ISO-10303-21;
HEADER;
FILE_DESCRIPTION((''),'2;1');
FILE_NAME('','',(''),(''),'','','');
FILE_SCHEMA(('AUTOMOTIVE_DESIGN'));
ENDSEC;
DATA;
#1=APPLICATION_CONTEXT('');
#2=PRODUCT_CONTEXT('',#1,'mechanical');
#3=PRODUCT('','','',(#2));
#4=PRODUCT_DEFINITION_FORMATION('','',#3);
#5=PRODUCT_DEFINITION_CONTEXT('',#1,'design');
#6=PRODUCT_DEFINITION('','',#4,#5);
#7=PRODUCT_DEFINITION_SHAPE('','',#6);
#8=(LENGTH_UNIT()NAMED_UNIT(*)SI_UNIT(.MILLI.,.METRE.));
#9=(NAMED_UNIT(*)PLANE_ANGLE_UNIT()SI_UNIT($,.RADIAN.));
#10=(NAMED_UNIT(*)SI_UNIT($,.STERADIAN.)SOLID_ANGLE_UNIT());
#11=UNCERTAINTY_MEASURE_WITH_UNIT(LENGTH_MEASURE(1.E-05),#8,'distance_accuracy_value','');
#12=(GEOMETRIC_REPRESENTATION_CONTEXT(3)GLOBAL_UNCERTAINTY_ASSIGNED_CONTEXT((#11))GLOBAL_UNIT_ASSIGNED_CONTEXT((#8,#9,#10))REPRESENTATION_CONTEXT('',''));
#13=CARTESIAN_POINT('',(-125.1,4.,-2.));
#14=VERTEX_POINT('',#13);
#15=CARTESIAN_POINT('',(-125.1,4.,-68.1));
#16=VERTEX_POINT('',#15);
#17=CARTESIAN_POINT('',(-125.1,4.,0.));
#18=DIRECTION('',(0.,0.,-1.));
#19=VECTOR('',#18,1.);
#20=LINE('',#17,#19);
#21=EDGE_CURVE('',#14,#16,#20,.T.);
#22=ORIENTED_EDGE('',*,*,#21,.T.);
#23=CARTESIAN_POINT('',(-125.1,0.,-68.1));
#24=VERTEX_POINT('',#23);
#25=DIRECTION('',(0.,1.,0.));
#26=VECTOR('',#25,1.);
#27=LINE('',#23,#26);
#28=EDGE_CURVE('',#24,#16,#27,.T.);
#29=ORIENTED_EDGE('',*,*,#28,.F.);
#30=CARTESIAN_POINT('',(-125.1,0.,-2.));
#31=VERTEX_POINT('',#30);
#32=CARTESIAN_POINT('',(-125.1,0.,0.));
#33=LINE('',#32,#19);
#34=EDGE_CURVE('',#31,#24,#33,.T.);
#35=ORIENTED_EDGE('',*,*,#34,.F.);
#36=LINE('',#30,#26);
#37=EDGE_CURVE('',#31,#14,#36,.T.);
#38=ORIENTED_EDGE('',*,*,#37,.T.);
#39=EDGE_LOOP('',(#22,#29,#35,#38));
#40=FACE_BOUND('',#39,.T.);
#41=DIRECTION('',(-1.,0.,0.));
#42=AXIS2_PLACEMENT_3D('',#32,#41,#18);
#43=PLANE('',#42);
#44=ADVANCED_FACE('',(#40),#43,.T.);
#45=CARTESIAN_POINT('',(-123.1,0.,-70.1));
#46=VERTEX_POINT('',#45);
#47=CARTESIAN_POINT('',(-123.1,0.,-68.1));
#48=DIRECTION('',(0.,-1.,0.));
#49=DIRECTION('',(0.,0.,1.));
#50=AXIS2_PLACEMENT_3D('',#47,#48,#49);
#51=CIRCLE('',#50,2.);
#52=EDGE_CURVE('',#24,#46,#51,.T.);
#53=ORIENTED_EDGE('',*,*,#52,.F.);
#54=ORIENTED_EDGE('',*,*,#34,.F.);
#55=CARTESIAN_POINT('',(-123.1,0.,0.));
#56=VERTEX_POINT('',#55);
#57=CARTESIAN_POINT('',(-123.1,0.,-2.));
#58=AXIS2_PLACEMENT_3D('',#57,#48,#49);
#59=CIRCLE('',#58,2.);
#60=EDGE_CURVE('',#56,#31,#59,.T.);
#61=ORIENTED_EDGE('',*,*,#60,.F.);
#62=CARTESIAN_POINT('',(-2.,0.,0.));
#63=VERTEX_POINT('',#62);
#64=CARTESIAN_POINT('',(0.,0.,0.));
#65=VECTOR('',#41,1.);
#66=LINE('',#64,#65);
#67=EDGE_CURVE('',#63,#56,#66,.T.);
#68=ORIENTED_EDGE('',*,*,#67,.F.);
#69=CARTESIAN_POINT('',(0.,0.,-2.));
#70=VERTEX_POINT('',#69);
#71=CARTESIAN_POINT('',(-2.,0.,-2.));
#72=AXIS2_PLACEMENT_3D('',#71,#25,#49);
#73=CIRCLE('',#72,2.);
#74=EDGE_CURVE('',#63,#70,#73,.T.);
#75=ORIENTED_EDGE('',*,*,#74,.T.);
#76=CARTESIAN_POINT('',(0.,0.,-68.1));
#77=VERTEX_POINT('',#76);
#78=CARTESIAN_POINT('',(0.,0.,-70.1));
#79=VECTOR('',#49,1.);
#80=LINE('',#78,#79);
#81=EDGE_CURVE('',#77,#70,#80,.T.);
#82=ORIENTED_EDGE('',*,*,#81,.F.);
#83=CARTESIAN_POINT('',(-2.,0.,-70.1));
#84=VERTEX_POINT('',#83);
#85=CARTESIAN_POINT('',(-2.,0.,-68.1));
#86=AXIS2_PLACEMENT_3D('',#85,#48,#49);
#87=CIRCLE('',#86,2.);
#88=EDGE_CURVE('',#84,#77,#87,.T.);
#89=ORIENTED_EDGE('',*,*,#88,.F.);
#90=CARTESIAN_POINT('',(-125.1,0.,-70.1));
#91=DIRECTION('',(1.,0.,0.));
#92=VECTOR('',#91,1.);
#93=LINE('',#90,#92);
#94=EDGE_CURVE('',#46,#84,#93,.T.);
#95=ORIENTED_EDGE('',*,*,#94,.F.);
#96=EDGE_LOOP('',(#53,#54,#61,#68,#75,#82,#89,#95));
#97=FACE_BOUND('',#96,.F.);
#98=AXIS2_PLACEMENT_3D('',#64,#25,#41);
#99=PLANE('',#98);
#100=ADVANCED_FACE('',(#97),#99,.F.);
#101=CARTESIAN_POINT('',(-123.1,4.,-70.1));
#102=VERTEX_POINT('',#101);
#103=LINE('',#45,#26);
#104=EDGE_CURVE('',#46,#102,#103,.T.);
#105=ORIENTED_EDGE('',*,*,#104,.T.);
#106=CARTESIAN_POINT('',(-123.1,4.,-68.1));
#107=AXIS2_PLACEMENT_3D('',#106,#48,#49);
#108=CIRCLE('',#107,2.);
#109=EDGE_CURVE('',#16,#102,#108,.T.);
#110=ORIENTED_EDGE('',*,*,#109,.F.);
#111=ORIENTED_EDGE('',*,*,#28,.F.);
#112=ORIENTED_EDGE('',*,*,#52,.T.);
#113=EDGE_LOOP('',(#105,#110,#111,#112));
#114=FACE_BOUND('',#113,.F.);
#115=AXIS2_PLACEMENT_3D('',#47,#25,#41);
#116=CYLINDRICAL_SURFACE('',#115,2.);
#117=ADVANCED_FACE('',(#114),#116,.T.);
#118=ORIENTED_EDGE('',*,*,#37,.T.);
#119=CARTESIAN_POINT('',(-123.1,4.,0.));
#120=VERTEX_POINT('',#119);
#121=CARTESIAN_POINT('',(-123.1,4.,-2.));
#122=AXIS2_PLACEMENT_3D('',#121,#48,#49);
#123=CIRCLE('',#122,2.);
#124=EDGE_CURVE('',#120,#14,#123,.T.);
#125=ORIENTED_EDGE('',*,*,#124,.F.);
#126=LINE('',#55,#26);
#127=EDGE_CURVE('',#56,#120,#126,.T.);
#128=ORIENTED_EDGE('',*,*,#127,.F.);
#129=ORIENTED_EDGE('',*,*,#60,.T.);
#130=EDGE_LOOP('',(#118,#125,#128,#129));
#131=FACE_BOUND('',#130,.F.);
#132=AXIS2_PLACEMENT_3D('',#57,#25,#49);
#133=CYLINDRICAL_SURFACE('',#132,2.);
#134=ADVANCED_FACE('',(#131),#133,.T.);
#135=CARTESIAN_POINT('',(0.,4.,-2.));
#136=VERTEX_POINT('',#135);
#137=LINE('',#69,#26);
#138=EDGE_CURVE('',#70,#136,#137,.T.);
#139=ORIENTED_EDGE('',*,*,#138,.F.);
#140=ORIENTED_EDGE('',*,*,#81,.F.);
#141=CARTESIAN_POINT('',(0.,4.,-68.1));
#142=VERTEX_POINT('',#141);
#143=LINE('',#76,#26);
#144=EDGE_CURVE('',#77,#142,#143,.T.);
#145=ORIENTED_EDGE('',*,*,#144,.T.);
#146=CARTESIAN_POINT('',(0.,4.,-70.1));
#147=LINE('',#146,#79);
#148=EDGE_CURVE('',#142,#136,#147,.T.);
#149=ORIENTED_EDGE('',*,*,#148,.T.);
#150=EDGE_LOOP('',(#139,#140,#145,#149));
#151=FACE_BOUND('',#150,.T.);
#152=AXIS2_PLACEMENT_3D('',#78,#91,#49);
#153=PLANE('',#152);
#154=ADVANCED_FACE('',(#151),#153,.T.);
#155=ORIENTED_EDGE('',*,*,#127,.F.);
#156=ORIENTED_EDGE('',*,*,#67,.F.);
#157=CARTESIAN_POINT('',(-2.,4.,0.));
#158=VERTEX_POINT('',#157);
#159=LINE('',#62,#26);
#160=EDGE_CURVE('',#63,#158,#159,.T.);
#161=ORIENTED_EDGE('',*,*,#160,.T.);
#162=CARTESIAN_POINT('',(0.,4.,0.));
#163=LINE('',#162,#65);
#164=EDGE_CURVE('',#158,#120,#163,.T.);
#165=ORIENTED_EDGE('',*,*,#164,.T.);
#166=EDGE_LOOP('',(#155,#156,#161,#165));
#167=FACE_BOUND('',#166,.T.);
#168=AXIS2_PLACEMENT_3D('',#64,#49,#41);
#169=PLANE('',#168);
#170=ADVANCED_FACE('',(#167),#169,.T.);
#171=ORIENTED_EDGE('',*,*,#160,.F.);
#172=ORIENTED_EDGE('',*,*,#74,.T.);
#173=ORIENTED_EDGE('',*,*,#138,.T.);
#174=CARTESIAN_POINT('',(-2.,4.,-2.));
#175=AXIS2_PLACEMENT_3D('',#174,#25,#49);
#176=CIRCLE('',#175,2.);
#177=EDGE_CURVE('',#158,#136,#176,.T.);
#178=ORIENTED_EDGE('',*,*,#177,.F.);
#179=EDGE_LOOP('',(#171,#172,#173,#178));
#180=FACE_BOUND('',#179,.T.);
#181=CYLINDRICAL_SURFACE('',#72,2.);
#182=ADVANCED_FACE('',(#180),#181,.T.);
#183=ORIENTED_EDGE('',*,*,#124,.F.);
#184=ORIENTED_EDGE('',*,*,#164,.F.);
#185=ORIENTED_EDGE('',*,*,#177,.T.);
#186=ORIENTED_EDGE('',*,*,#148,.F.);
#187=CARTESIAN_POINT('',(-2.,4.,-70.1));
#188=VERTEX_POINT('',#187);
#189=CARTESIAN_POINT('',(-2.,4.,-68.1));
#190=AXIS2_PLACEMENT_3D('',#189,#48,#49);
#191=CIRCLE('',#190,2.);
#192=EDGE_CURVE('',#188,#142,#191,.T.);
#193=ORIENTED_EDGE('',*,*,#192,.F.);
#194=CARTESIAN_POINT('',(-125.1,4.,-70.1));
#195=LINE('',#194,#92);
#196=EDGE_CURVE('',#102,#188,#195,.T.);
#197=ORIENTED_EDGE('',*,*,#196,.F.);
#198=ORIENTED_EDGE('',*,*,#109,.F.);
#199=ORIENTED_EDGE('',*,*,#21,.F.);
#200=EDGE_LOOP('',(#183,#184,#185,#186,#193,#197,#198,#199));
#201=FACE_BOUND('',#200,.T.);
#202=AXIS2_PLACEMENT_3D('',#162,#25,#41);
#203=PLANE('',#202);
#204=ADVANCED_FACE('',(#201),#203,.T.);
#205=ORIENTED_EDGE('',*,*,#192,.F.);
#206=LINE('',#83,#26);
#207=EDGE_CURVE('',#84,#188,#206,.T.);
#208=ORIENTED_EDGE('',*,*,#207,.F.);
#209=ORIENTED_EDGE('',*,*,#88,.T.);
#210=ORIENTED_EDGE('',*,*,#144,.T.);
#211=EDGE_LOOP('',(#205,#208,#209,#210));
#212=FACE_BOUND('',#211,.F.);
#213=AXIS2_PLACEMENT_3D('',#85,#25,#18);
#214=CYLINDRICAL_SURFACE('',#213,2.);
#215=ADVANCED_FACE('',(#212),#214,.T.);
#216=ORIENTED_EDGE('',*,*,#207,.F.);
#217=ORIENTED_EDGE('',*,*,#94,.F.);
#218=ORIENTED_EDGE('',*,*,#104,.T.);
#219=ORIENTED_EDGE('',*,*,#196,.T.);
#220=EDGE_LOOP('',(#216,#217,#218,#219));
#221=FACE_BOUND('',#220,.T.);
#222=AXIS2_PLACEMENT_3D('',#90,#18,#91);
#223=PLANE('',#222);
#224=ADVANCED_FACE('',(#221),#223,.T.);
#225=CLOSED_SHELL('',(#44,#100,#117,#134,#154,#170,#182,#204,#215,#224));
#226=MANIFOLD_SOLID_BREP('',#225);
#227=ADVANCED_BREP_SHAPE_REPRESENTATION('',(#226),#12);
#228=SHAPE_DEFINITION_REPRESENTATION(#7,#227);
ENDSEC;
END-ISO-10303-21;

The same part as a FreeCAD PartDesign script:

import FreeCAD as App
import Part
import Sketcher


def edges_at(feature, points):
    """Names of the edges that pass closest to the given points."""
    edges = feature.Shape.Edges
    near = lambda p: min(range(len(edges)), key=lambda i: edges[i].distToShape(Part.Vertex(*p))[0])
    return sorted({f"Edge{near(p) + 1}" for p in points})

doc = App.newDocument("Part")
body = doc.addObject("PartDesign::Body", "Body")

# Sketch on XZ plane
sketch1 = body.newObject("Sketcher::SketchObject", "Sketch")
sketch1.AttachmentSupport = (doc.getObject("XZ_Plane"), [""])
sketch1.MapMode = "FlatFace"
sketch1.addGeometry([
    Part.LineSegment(App.Vector(-125.1, 0, 0), App.Vector(0, 0, 0)),
    Part.LineSegment(App.Vector(0, 0, 0), App.Vector(0, -70.1, 0)),
    Part.LineSegment(App.Vector(0, -70.1, 0), App.Vector(-125.1, -70.1, 0)),
    Part.LineSegment(App.Vector(-125.1, -70.1, 0), App.Vector(-125.1, 0, 0)),
], False)
sketch1.addConstraint([
    Sketcher.Constraint("Coincident", 0, 2, 1, 1),
    Sketcher.Constraint("Coincident", 1, 2, 2, 1),
    Sketcher.Constraint("Coincident", 2, 2, 3, 1),
    Sketcher.Constraint("Coincident", 3, 2, 0, 1),
    Sketcher.Constraint("Horizontal", 0),
    Sketcher.Constraint("Vertical", 1),
    Sketcher.Constraint("Horizontal", 2),
    Sketcher.Constraint("Vertical", 3),
    Sketcher.Constraint("Coincident", 0, 2, -1, 1),
    Sketcher.Constraint("DistanceX", 0, 1, 0, 2, 125.1),
    Sketcher.Constraint("DistanceY", 1, 2, 1, 1, 70.1),
])
pad1 = body.newObject("PartDesign::Pad", "Pad")
pad1.Profile = sketch1
pad1.Length = 4
pad1.Reversed = True
doc.recompute()

fillet = body.newObject("PartDesign::Fillet", "Fillet")
fillet.Base = (pad1, edges_at(pad1, [
    (-125.1, 2, 0),
    (-125.1, 2, -70.1),
    (0, 2, 0),
    (0, 2, -70.1),
]))
fillet.Radius = 2

doc.recompute()
